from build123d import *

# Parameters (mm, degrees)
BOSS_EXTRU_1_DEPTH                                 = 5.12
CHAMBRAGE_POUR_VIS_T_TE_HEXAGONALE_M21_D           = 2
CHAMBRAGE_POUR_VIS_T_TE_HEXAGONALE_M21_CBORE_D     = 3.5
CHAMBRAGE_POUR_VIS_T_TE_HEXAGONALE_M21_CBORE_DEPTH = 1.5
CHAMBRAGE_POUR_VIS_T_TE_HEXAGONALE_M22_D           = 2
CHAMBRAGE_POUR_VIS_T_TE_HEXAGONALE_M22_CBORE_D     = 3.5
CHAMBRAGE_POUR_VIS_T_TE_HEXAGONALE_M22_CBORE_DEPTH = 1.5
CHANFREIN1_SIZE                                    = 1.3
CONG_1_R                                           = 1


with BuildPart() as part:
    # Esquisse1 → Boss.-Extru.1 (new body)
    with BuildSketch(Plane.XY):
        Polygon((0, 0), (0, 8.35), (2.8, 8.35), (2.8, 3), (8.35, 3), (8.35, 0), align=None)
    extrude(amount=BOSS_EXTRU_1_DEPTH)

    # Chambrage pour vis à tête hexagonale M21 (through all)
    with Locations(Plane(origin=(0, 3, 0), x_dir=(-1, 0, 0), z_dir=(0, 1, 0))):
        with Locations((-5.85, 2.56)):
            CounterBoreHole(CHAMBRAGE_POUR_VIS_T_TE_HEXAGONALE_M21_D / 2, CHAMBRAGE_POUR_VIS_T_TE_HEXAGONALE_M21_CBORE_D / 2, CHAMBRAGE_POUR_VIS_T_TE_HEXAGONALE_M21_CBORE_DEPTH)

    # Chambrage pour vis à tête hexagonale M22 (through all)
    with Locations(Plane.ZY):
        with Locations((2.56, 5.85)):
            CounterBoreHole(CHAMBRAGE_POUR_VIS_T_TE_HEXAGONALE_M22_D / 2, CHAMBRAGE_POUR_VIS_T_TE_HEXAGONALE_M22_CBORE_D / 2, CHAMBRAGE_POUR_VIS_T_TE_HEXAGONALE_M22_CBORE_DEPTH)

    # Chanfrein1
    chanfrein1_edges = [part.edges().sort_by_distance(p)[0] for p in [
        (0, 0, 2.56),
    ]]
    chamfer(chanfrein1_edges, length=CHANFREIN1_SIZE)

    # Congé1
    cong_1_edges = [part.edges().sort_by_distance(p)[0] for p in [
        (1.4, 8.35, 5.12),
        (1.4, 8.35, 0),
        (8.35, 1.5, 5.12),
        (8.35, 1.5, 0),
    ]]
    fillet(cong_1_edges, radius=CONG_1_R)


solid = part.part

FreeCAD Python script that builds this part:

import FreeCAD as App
import Part
import Sketcher
from FreeCAD import Vector


def edges_at(feature, points):
    """Names of the edges that pass closest to the given points."""
    edges = feature.Shape.Edges
    near = lambda p: min(range(len(edges)), key=lambda i: edges[i].distToShape(Part.Vertex(*p))[0])
    return sorted({f"Edge{near(p) + 1}" for p in points})

doc = App.newDocument("Part")
body = doc.addObject("PartDesign::Body", "Body")

# Sketch on XY plane
sketch1 = body.newObject("Sketcher::SketchObject", "Sketch")
sketch1.AttachmentSupport = (doc.getObject("XY_Plane"), [""])
sketch1.MapMode = "FlatFace"
sketch1.addGeometry(Part.LineSegment(Vector(0, 8.3, 0), Vector(0, 0, 0)), False)
sketch1.addGeometry(Part.LineSegment(Vector(0, 0, 0), Vector(8.3, 0, 0)), False)
sketch1.addGeometry(Part.LineSegment(Vector(8.3, 0, 0), Vector(8.3, 3, 0)), False)
sketch1.addGeometry(Part.LineSegment(Vector(8.3, 3, 0), Vector(2.8, 3, 0)), False)
sketch1.addGeometry(Part.LineSegment(Vector(2.8, 3, 0), Vector(2.8, 8.3, 0)), False)
sketch1.addGeometry(Part.LineSegment(Vector(2.8, 8.3, 0), Vector(0, 8.3, 0)), False)
sketch1.addConstraint(Sketcher.Constraint("Coincident", 0, 2, 1, 1))
sketch1.addConstraint(Sketcher.Constraint("Coincident", 1, 2, 2, 1))
sketch1.addConstraint(Sketcher.Constraint("Coincident", 2, 2, 3, 1))
sketch1.addConstraint(Sketcher.Constraint("Coincident", 3, 2, 4, 1))
sketch1.addConstraint(Sketcher.Constraint("Coincident", 4, 2, 5, 1))
sketch1.addConstraint(Sketcher.Constraint("Coincident", 5, 2, 0, 1))
sketch1.addConstraint(Sketcher.Constraint("Vertical", 0))
sketch1.addConstraint(Sketcher.Constraint("Horizontal", 1))
sketch1.addConstraint(Sketcher.Constraint("Vertical", 2))
sketch1.addConstraint(Sketcher.Constraint("Horizontal", 3))
sketch1.addConstraint(Sketcher.Constraint("Vertical", 4))
sketch1.addConstraint(Sketcher.Constraint("Horizontal", 5))
sketch1.addConstraint(Sketcher.Constraint("Coincident", 0, 2, -1, 1))
sketch1.addConstraint(Sketcher.Constraint("Equal", 1, 0))
sketch1.addConstraint(Sketcher.Constraint("DistanceY", 2, 1, 2, 2, 3.0))
sketch1.addConstraint(Sketcher.Constraint("DistanceX", 5, 2, 5, 1, 2.8))
sketch1.addConstraint(Sketcher.Constraint("DistanceX", 1, 1, 1, 2, 8.35))
pad1 = body.newObject("PartDesign::Pad", "Pad")
pad1.Profile = sketch1
pad1.Length = 5.12

# Sketch on XZ plane
sketch2 = body.newObject("Sketcher::SketchObject", "Sketch001")
sketch2.AttachmentSupport = (doc.getObject("XZ_Plane"), [""])
sketch2.MapMode = "FlatFace"
sketch2.AttachmentOffset = App.Placement(Vector(0, 0, -3), App.Rotation())
sketch2.addGeometry(Part.Circle(Vector(5.8, 2.6, 0), Vector(0, 0, 1), 1), False)
sketch2.addConstraint(Sketcher.Constraint("Diameter", 0, 2.0))
sketch2.addConstraint(Sketcher.Constraint("DistanceX", -1, 1, 0, 3, 5.85))
sketch2.addConstraint(Sketcher.Constraint("DistanceY", -1, 1, 0, 3, 2.56))
doc.recompute()
hole = body.newObject("PartDesign::Hole", "Hole")
hole.Profile = sketch2
hole.ThreadType = "None"
hole.Diameter = 2
hole.DepthType = "ThroughAll"
hole.HoleCutType = "Counterbore"
hole.HoleCutDiameter = 3.5
hole.HoleCutDepth = 1.5
hole.Reversed = True

# Sketch on YZ plane
sketch3 = body.newObject("Sketcher::SketchObject", "Sketch002")
sketch3.AttachmentSupport = (doc.getObject("YZ_Plane"), [""])
sketch3.MapMode = "FlatFace"
sketch3.addGeometry(Part.Circle(Vector(5.8, 2.6, 0), Vector(0, 0, 1), 1), False)
sketch3.addConstraint(Sketcher.Constraint("Diameter", 0, 2.0))
sketch3.addConstraint(Sketcher.Constraint("DistanceX", -1, 1, 0, 3, 5.85))
sketch3.addConstraint(Sketcher.Constraint("DistanceY", -1, 1, 0, 3, 2.56))
doc.recompute()
hole2 = body.newObject("PartDesign::Hole", "Hole001")
hole2.Profile = sketch3
hole2.ThreadType = "None"
hole2.Diameter = 2
hole2.DepthType = "ThroughAll"
hole2.HoleCutType = "Counterbore"
hole2.HoleCutDiameter = 3.5
hole2.HoleCutDepth = 1.5
hole2.Reversed = True
doc.recompute()

chamfer = body.newObject("PartDesign::Chamfer", "Chamfer")
chamfer.Base = (hole2, edges_at(hole2, [(0, 0, 2.56)]))
chamfer.Size = 1.3
doc.recompute()

fillet = body.newObject("PartDesign::Fillet", "Fillet")
fillet.Base = (chamfer, edges_at(chamfer, [
    (1.4, 8.35, 5.12),
    (1.4, 8.35, 0),
    (8.35, 1.5, 5.12),
    (8.35, 1.5, 0),
]))
fillet.Radius = 1

doc.recompute()
